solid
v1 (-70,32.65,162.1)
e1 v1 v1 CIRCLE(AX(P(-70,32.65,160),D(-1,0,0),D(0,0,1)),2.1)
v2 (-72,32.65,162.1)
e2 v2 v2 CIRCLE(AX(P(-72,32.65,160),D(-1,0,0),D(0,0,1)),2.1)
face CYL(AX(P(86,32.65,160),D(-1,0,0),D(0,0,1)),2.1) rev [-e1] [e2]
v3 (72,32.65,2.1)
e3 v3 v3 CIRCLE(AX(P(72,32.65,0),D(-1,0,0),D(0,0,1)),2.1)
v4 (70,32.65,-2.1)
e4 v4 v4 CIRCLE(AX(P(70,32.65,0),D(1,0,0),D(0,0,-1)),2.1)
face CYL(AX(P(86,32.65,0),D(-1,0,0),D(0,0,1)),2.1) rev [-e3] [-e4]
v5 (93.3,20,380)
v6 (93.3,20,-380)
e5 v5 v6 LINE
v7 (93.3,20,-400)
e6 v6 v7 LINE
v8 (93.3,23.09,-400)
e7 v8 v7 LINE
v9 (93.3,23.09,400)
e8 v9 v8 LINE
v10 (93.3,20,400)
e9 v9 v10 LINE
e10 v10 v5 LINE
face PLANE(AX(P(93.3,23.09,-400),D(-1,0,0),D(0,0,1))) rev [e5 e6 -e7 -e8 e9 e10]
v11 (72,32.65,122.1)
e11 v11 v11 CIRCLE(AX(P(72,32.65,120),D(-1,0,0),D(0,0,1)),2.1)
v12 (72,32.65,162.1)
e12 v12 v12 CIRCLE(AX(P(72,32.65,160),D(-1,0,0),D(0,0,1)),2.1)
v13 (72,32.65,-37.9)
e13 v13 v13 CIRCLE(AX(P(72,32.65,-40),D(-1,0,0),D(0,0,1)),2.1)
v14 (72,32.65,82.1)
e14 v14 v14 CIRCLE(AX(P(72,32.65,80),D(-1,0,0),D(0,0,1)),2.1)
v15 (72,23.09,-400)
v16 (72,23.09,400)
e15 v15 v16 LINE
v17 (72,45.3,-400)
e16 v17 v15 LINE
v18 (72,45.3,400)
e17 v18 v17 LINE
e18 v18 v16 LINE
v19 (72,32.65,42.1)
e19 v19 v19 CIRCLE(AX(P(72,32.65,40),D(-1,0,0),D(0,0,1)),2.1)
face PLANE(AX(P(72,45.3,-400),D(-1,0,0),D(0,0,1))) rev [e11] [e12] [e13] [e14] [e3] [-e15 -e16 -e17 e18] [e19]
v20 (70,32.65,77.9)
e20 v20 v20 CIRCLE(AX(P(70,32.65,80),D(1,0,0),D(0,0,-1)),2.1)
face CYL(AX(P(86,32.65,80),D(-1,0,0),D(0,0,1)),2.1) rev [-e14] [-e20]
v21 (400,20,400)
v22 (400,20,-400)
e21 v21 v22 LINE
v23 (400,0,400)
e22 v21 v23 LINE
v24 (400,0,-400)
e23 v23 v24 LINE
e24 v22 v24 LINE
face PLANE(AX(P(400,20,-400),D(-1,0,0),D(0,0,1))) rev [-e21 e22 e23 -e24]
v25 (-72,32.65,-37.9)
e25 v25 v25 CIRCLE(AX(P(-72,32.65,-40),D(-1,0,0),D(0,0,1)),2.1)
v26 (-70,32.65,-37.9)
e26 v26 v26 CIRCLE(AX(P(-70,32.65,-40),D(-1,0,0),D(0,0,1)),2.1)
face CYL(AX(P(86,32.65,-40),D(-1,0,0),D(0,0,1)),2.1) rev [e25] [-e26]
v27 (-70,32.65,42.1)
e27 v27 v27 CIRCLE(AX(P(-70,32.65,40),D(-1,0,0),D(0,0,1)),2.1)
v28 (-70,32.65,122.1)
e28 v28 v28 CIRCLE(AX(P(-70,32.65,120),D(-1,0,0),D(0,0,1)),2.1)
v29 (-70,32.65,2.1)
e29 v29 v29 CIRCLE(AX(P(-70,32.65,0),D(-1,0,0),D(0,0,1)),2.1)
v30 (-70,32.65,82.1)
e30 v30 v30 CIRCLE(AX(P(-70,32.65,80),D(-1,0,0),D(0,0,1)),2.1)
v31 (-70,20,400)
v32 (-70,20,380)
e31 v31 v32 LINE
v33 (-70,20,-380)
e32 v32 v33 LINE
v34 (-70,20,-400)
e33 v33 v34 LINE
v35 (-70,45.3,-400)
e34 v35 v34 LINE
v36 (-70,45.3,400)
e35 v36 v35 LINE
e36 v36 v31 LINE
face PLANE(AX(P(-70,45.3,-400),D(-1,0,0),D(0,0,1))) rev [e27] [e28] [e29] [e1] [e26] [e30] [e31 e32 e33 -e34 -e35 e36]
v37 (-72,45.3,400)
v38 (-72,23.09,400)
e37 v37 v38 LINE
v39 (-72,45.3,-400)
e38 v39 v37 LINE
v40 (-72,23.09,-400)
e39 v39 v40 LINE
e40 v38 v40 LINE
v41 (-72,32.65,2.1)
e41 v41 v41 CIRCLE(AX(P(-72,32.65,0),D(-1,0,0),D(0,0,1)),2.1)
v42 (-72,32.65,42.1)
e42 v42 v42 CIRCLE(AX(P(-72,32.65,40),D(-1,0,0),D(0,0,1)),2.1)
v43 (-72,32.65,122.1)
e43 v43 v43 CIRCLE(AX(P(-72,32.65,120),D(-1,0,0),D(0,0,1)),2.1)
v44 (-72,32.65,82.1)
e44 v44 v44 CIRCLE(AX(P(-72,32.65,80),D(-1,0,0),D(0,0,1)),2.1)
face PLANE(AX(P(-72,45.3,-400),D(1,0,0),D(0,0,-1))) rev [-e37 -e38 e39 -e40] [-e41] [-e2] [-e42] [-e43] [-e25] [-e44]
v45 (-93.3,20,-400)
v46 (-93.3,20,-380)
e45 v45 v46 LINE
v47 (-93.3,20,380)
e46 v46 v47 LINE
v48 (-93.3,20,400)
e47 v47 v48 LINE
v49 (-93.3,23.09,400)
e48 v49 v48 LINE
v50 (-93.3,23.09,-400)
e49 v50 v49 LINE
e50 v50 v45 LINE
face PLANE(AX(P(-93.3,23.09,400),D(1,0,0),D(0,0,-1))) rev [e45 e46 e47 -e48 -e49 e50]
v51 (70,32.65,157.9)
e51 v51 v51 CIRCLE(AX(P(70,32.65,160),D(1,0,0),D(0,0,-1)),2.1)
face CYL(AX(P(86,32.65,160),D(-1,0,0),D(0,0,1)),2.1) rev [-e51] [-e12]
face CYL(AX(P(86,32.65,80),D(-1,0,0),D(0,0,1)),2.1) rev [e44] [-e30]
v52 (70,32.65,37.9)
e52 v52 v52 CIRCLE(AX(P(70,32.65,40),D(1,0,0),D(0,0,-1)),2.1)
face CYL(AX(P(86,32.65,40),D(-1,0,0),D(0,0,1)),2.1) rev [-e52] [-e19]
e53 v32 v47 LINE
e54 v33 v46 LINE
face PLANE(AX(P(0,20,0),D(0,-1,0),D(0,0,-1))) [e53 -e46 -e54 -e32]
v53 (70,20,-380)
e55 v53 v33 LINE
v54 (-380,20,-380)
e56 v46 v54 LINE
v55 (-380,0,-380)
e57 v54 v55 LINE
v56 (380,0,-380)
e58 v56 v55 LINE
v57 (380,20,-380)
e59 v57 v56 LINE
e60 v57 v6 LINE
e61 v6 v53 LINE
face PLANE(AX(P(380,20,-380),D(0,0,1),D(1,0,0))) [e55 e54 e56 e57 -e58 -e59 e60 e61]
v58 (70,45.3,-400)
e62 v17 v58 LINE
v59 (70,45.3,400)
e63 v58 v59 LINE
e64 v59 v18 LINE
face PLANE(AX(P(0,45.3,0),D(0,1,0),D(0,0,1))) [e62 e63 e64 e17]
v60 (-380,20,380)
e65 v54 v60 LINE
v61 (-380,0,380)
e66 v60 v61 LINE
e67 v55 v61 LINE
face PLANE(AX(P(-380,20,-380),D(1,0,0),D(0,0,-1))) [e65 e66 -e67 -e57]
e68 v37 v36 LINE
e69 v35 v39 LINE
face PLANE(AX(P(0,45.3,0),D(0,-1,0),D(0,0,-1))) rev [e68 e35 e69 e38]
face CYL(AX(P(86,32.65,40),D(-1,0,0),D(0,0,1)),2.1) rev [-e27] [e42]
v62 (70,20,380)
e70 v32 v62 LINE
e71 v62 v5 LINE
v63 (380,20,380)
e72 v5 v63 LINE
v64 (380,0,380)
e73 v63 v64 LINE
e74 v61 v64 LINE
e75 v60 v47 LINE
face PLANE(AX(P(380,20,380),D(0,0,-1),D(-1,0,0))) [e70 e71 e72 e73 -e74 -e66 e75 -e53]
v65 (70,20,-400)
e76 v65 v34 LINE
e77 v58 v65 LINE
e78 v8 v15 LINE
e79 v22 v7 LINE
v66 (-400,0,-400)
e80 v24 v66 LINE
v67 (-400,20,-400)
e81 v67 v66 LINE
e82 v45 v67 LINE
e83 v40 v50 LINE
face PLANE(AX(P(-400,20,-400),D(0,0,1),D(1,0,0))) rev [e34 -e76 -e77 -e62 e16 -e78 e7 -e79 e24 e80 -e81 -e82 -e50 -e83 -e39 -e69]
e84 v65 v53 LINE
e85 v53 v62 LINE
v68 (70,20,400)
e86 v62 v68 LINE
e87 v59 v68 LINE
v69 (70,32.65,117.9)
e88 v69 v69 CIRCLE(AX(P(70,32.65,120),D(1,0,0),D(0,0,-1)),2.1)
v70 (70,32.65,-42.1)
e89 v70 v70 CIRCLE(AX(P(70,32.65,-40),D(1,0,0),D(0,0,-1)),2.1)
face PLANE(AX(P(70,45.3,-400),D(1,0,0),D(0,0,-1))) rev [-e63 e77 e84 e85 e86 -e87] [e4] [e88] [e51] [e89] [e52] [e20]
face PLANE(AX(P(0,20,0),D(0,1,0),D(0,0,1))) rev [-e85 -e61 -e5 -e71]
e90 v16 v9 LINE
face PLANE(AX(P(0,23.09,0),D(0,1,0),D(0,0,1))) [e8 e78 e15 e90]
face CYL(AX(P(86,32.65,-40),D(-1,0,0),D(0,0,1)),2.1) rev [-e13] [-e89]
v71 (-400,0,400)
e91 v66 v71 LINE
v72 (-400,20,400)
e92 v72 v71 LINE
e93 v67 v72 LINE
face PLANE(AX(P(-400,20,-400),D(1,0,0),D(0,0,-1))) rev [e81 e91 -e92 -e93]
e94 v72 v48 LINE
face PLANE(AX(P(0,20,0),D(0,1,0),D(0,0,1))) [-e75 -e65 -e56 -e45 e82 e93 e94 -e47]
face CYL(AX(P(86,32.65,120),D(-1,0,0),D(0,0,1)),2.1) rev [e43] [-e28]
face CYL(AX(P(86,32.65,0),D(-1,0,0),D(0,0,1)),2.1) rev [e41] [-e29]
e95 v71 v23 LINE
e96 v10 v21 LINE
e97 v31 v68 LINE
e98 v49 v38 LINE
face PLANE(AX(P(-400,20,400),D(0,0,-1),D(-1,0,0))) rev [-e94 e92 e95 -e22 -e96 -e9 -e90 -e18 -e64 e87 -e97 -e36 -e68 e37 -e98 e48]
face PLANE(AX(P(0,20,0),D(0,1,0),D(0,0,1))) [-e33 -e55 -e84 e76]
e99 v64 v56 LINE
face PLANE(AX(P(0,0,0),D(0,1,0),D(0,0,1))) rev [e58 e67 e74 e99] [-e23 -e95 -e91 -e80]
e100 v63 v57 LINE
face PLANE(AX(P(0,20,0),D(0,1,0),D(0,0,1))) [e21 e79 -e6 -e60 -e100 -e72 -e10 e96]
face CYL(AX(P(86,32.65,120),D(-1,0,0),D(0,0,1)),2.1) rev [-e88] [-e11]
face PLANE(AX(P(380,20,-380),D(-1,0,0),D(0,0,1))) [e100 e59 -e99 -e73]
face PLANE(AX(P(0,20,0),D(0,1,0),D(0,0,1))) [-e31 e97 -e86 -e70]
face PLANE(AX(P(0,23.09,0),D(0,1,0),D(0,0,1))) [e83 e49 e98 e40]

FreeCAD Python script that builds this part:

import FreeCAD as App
import Part
import Sketcher


def add_polygon(sketch, points):
    """Adds a closed chain of lines whose ends are joined by coincident constraints."""
    first, n = sketch.GeometryCount, len(points)
    for a, b in zip(points, points[1:] + points[:1]):
        sketch.addGeometry(Part.LineSegment(App.Vector(*a, 0), App.Vector(*b, 0)), False)
    for i in range(n):
        sketch.addConstraint(Sketcher.Constraint("Coincident", first + i, 2, first + (i + 1) % n, 1))

doc = App.newDocument("Part")
body = doc.addObject("PartDesign::Body", "Body")

# Sketch on XZ plane
sketch1 = doc.addObject("Sketcher::SketchObject", "Sketch")
body.addObject(sketch1)
sketch1.AttachmentSupport = (doc.XZ_Plane, [""])
sketch1.MapMode = "FlatFace"
add_polygon(sketch1, [(-400, -400), (-400, 400), (400, 400), (400, -400)])  # lines 0-3
add_polygon(sketch1, [(380, 380), (-380, 380), (-380, -380), (380, -380)])  # lines 4-7
sketch1.addConstraint(Sketcher.Constraint("Vertical", 0))
sketch1.addConstraint(Sketcher.Constraint("Horizontal", 1))
sketch1.addConstraint(Sketcher.Constraint("Vertical", 2))
sketch1.addConstraint(Sketcher.Constraint("Horizontal", 3))
sketch1.addConstraint(Sketcher.Constraint("Horizontal", 4))
sketch1.addConstraint(Sketcher.Constraint("Vertical", 5))
sketch1.addConstraint(Sketcher.Constraint("Horizontal", 6))
sketch1.addConstraint(Sketcher.Constraint("Vertical", 7))
sketch1.addConstraint(Sketcher.Constraint("Symmetric", 0, 2, 2, 2, -1, 1))
sketch1.addConstraint(Sketcher.Constraint("Symmetric", 4, 2, 6, 2, -1, 1))
sketch1.addConstraint(Sketcher.Constraint("Equal", 3, 0))
sketch1.addConstraint(Sketcher.Constraint("Equal", 6, 5))
sketch1.addConstraint(Sketcher.Constraint("DistanceX", 1, 1, 1, 2, 800.0))
sketch1.addConstraint(Sketcher.Constraint("DistanceX", 4, 2, 4, 1, 760.0))
pad1 = doc.addObject("PartDesign::Pad", "Pad")
body.addObject(pad1)
pad1.Profile = sketch1
pad1.Length = 20
pad1.Reversed = True

# Sketch on XZ plane
sketch2 = doc.addObject("Sketcher::SketchObject", "Sketch001")
body.addObject(sketch2)
sketch2.AttachmentSupport = (doc.XZ_Plane, [""])
sketch2.MapMode = "FlatFace"
sketch2.AttachmentOffset = App.Placement(App.Vector(0, 0, -20), App.Rotation())
add_polygon(sketch2, [(-72, -400), (-72, 400), (-70, 400), (-70, -400)])  # lines 0-3
add_polygon(sketch2, [(70, -400), (70, 400), (72, 400), (72, -400)])  # lines 4-7
sketch2.addConstraint(Sketcher.Constraint("Vertical", 0))
sketch2.addConstraint(Sketcher.Constraint("Horizontal", 1))
sketch2.addConstraint(Sketcher.Constraint("Vertical", 2))
sketch2.addConstraint(Sketcher.Constraint("Horizontal", 3))
sketch2.addConstraint(Sketcher.Constraint("Vertical", 4))
sketch2.addConstraint(Sketcher.Constraint("Horizontal", 5))
sketch2.addConstraint(Sketcher.Constraint("Vertical", 6))
sketch2.addConstraint(Sketcher.Constraint("Horizontal", 7))
sketch2.addConstraint(Sketcher.Constraint("Symmetric", 2, 2, 4, 2, -1, 1))
sketch2.addConstraint(Sketcher.Constraint("Symmetric", 0, 2, 6, 2, -1, 1))
sketch2.addConstraint(Sketcher.Constraint("Horizontal", 1, 2, 4, 2))
sketch2.addConstraint(Sketcher.Constraint("DistanceX", 1, 1, 1, 2, 2.0))
sketch2.addConstraint(Sketcher.Constraint("DistanceY", 0, 1, 0, 2, 800.0))
sketch2.addConstraint(Sketcher.Constraint("DistanceX", 0, 2, -1, 1, 72.0))
pad2 = doc.addObject("PartDesign::Pad", "Pad001")
body.addObject(pad2)
pad2.Profile = sketch2
pad2.Length = 25.3
pad2.Reversed = True

# Sketch on YZ plane
sketch3 = doc.addObject("Sketcher::SketchObject", "Sketch002")
body.addObject(sketch3)
sketch3.AttachmentSupport = (doc.YZ_Plane, [""])
sketch3.MapMode = "FlatFace"
sketch3.AttachmentOffset = App.Placement(App.Vector(0, 0, -72), App.Rotation())
sketch3.addGeometry(Part.Circle(App.Vector(32.65, 0, 0), App.Vector(0, 0, 1), 2.1), False)
sketch3.addGeometry(Part.Circle(App.Vector(32.65, -40, 0), App.Vector(0, 0, 1), 2.1), False)
sketch3.addGeometry(Part.Circle(App.Vector(32.65, 40, 0), App.Vector(0, 0, 1), 2.1), False)
sketch3.addGeometry(Part.Circle(App.Vector(32.65, 80, 0), App.Vector(0, 0, 1), 2.1), False)
sketch3.addGeometry(Part.Circle(App.Vector(32.65, 120, 0), App.Vector(0, 0, 1), 2.1), False)
sketch3.addGeometry(Part.Circle(App.Vector(32.65, 160, 0), App.Vector(0, 0, 1), 2.1), False)
sketch3.addConstraint(Sketcher.Constraint("Equal", 0, 1))
sketch3.addConstraint(Sketcher.Constraint("Equal", 1, 2))
sketch3.addConstraint(Sketcher.Constraint("Equal", 2, 3))
sketch3.addConstraint(Sketcher.Constraint("Equal", 3, 4))
sketch3.addConstraint(Sketcher.Constraint("Equal", 4, 5))
sketch3.addConstraint(Sketcher.Constraint("Symmetric", 1, 3, 2, 3, -1))
sketch3.addConstraint(Sketcher.Constraint("PointOnObject", 0, 3, -1))
sketch3.addConstraint(Sketcher.Constraint("Vertical", 0, 3, 1, 3))
sketch3.addConstraint(Sketcher.Constraint("Vertical", 2, 3, 3, 3))
sketch3.addConstraint(Sketcher.Constraint("Vertical", 3, 3, 4, 3))
sketch3.addConstraint(Sketcher.Constraint("Vertical", 4, 3, 5, 3))
sketch3.addConstraint(Sketcher.Constraint("Diameter", 0, 4.2))
sketch3.addConstraint(Sketcher.Constraint("DistanceY", 1, 3, -1, 1, 40.0))
sketch3.addConstraint(Sketcher.Constraint("DistanceY", -1, 1, 3, 3, 80.0))
sketch3.addConstraint(Sketcher.Constraint("DistanceY", -1, 1, 4, 3, 120.0))
sketch3.addConstraint(Sketcher.Constraint("DistanceY", -1, 1, 5, 3, 160.0))
sketch3.addConstraint(Sketcher.Constraint("DistanceX", -1, 1, 0, 3, 32.65))
pocket1 = doc.addObject("PartDesign::Pocket", "Pocket")
body.addObject(pocket1)
pocket1.Profile = sketch3
pocket1.Length = 158
pocket1.Reversed = True

# Sketch on XZ plane
sketch4 = doc.addObject("Sketcher::SketchObject", "Sketch003")
body.addObject(sketch4)
sketch4.AttachmentSupport = (doc.XZ_Plane, [""])
sketch4.MapMode = "FlatFace"
sketch4.AttachmentOffset = App.Placement(App.Vector(0, 0, -20), App.Rotation())
add_polygon(sketch4, [(72, -400), (72, 400), (93.3, 400), (93.3, -400)])  # lines 0-3
add_polygon(sketch4, [(-93.3, -400), (-93.3, 400), (-72, 400), (-72, -400)])  # lines 4-7
sketch4.addConstraint(Sketcher.Constraint("Vertical", 0))
sketch4.addConstraint(Sketcher.Constraint("Horizontal", 1))
sketch4.addConstraint(Sketcher.Constraint("Vertical", 2))
sketch4.addConstraint(Sketcher.Constraint("Horizontal", 3))
sketch4.addConstraint(Sketcher.Constraint("Vertical", 4))
sketch4.addConstraint(Sketcher.Constraint("Horizontal", 5))
sketch4.addConstraint(Sketcher.Constraint("Vertical", 6))
sketch4.addConstraint(Sketcher.Constraint("Horizontal", 7))
sketch4.addConstraint(Sketcher.Constraint("Symmetric", 2, 2, 4, 2, -1, 1))
sketch4.addConstraint(Sketcher.Constraint("Symmetric", 0, 2, 6, 2, -1, 1))
sketch4.addConstraint(Sketcher.Constraint("Horizontal", 1, 2, 4, 2))
sketch4.addConstraint(Sketcher.Constraint("DistanceY", 0, 1, 0, 2, 800.0))
sketch4.addConstraint(Sketcher.Constraint("DistanceX", 1, 1, 1, 2, 21.3))
sketch4.addConstraint(Sketcher.Constraint("DistanceX", -1, 1, 0, 2, 72.0))
pad3 = doc.addObject("PartDesign::Pad", "Pad002")
body.addObject(pad3)
pad3.Profile = sketch4
pad3.Length = 3.09
pad3.Reversed = True

doc.recompute()
